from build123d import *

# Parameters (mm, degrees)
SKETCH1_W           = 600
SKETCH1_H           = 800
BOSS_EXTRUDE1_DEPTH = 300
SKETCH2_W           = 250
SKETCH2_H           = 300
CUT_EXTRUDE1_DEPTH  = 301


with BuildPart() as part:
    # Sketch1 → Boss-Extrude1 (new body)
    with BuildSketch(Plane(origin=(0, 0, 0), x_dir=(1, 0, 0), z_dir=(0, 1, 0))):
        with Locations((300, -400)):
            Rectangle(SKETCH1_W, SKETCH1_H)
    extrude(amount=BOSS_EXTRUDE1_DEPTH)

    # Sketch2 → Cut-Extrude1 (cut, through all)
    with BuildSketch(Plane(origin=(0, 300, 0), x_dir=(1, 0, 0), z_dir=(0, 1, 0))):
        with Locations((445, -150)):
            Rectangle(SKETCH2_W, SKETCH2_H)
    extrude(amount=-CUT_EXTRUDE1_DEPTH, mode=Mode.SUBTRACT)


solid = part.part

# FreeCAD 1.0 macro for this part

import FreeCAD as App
import Part
import Sketcher
Q = App.Units.Quantity


def add_polygon(sketch, points):
    """Adds a closed chain of lines whose ends are joined by coincident constraints."""
    first, n = sketch.GeometryCount, len(points)
    for a, b in zip(points, points[1:] + points[:1]):
        sketch.addGeometry(Part.LineSegment(App.Vector(*a, 0), App.Vector(*b, 0)), False)
    for i in range(n):
        sketch.addConstraint(Sketcher.Constraint("Coincident", first + i, 2, first + (i + 1) % n, 1))

doc = App.newDocument("Part")
params = doc.addObject("Spreadsheet::Sheet", "Params")
for row, (alias, value) in enumerate([
    ("sketch1_width", "600 mm"),
    ("sketch1_height", "800 mm"),
    ("pad1_length", "300 mm"),
    ("sketch2_width", "250 mm"),
    ("sketch2_height", "300 mm"),
], start=1):
    params.set(f"A{row}", alias)
    params.set(f"B{row}", "=" + value)
    params.setAlias(f"B{row}", alias)

body = doc.addObject("PartDesign::Body", "Body")

sketch1 = body.newObject("Sketcher::SketchObject", "Sketch")
sketch1.AttachmentSupport = (doc.getObject("XZ_Plane"), [""])
sketch1.MapMode = "FlatFace"
add_polygon(sketch1, [(0, 0), (0, 800), (600, 800), (600, 0)])
sketch1.addConstraint([
    Sketcher.Constraint("Vertical", 0),
    Sketcher.Constraint("Horizontal", 1),
    Sketcher.Constraint("Vertical", 2),
    Sketcher.Constraint("Horizontal", 3),
    Sketcher.Constraint("Coincident", 3, 2, -1, 1),
    Sketcher.Constraint("DistanceX", 1, 1, 1, 2, Q("600 mm")),
    Sketcher.Constraint("DistanceY", 0, 1, 0, 2, Q("800 mm")),
])
sketch1.setExpression("Constraints[9]", "Params.sketch1_width")
sketch1.setExpression("Constraints[10]", "Params.sketch1_height")
pad1 = body.newObject("PartDesign::Pad", "Pad")
pad1.Profile = sketch1
pad1.setExpression("Length", "Params.pad1_length")
pad1.Reversed = True

sketch2 = body.newObject("Sketcher::SketchObject", "Sketch001")
sketch2.AttachmentSupport = (doc.getObject("XZ_Plane"), [""])
sketch2.MapMode = "FlatFace"
sketch2.AttachmentOffset = App.Placement(App.Vector(0, 0, -300), App.Rotation())
add_polygon(sketch2, [(320, 0), (320, 300), (570, 300), (570, 0)])
sketch2.addConstraint([
    Sketcher.Constraint("Vertical", 0),
    Sketcher.Constraint("Horizontal", 1),
    Sketcher.Constraint("Vertical", 2),
    Sketcher.Constraint("Horizontal", 3),
    Sketcher.Constraint("PointOnObject", 2, 2, -1),
    Sketcher.Constraint("DistanceX", 1, 1, 1, 2, Q("250 mm")),
    Sketcher.Constraint("DistanceY", 0, 1, 0, 2, Q("300 mm")),
    Sketcher.Constraint("DistanceX", -1, 1, 0, 2, Q("320 mm")),
])
sketch2.setExpression("Constraints[9]", "Params.sketch2_width")
sketch2.setExpression("Constraints[10]", "Params.sketch2_height")
pocket1 = body.newObject("PartDesign::Pocket", "Pocket")
pocket1.Profile = sketch2
pocket1.Type = "ThroughAll"
pocket1.Reversed = True

doc.recompute()
